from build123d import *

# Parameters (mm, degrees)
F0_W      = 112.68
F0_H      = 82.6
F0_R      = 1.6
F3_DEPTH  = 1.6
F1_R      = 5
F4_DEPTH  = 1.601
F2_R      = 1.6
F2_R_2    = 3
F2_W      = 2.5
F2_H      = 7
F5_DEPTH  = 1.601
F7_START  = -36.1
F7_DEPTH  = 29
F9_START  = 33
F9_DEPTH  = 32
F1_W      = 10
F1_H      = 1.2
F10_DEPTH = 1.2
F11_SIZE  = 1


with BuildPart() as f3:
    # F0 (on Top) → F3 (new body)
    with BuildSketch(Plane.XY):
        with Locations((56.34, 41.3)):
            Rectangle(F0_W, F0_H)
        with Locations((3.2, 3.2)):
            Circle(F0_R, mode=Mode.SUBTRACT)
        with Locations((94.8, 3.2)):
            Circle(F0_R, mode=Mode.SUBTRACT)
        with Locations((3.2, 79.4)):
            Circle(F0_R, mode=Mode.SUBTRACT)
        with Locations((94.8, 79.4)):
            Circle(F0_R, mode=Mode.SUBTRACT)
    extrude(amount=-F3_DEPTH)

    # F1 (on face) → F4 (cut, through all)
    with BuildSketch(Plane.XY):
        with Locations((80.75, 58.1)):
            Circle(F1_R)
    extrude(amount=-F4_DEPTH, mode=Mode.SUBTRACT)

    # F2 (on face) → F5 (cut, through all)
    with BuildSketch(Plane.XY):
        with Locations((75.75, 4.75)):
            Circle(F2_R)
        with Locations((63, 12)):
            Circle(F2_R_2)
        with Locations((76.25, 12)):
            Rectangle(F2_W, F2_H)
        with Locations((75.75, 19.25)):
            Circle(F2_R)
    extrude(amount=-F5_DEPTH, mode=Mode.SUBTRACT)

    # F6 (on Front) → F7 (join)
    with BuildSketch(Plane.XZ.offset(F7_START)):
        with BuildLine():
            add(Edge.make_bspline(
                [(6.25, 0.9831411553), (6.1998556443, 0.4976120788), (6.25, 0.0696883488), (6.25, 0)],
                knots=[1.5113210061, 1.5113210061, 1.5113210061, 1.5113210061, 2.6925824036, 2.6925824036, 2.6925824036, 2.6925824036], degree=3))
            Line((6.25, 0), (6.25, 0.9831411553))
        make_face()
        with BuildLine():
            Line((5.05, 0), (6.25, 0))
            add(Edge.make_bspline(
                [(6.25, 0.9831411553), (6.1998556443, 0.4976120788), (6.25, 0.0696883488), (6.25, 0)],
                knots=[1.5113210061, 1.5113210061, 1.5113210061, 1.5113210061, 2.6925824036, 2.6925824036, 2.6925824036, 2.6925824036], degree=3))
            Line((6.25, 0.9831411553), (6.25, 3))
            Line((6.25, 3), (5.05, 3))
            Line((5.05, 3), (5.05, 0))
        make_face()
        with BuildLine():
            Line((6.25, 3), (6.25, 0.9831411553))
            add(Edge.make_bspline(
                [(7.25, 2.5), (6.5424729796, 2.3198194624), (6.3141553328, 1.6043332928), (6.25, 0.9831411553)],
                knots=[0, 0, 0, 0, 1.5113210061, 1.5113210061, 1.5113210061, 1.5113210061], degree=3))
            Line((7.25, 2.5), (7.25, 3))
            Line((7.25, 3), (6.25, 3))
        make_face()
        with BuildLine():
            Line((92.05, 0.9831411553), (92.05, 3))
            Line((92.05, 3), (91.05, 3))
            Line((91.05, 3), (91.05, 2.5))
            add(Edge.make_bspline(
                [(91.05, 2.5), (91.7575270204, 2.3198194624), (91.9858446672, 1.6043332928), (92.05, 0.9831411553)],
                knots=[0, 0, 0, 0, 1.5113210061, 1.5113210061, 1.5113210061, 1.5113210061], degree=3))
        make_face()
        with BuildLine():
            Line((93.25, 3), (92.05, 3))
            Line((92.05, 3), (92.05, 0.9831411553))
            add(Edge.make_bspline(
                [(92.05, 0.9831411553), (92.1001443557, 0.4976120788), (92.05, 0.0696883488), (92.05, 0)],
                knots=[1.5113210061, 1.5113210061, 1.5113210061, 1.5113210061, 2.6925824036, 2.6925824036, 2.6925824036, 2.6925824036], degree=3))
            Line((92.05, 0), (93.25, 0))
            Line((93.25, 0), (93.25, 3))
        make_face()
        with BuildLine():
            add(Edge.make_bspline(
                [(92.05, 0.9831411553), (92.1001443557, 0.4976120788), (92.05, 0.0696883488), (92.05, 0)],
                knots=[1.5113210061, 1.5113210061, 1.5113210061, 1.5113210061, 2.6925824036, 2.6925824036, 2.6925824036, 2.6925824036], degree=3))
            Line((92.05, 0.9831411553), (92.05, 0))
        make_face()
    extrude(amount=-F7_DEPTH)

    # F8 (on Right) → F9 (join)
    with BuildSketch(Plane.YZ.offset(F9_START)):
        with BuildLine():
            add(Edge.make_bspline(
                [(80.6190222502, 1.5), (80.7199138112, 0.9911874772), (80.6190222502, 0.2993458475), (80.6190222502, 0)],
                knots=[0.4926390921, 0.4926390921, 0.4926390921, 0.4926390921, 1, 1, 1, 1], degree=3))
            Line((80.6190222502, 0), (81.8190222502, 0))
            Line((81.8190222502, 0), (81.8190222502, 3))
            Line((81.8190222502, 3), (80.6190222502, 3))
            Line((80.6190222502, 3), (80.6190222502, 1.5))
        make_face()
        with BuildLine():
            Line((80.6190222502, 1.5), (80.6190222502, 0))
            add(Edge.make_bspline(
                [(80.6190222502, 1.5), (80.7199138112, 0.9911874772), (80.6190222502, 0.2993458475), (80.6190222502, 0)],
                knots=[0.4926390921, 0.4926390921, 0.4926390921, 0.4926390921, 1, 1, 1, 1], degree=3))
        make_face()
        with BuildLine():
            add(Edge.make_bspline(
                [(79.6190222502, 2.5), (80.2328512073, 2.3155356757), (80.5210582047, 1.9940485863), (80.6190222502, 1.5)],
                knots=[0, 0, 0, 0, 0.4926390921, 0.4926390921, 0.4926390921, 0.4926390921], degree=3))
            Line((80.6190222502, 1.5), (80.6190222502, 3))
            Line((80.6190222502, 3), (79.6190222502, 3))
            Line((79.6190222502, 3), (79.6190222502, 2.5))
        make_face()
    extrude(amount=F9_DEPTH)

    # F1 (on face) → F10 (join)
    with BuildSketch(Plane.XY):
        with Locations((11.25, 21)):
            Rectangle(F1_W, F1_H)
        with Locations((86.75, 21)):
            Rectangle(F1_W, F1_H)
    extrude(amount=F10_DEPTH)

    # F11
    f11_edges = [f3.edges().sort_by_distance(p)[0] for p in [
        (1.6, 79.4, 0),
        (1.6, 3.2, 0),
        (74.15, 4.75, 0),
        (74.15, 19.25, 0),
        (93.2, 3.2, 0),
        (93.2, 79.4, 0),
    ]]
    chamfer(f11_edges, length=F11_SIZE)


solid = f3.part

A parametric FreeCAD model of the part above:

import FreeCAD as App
import Part
import Sketcher
from FreeCAD import Vector


def edges_at(feature, points):
    """Names of the edges that pass closest to the given points."""
    edges = feature.Shape.Edges
    near = lambda p: min(range(len(edges)), key=lambda i: edges[i].distToShape(Part.Vertex(*p))[0])
    return sorted({f"Edge{near(p) + 1}" for p in points})


def add_polygon(sketch, points):
    """Adds a closed chain of lines whose ends are joined by coincident constraints."""
    first, n = sketch.GeometryCount, len(points)
    for a, b in zip(points, points[1:] + points[:1]):
        sketch.addGeometry(Part.LineSegment(App.Vector(*a, 0), App.Vector(*b, 0)), False)
    for i in range(n):
        sketch.addConstraint(Sketcher.Constraint("Coincident", first + i, 2, first + (i + 1) % n, 1))

doc = App.newDocument("Part")
body = doc.addObject("PartDesign::Body", "Body")

sketch1 = body.newObject("Sketcher::SketchObject", "Sketch")
sketch1.AttachmentSupport = (doc.getObject("XY_Plane"), [""])
sketch1.MapMode = "FlatFace"
add_polygon(sketch1, [(0, 82.6), (0, 0), (112.7, 0), (112.7, 82.6)])
sketch1.addGeometry(Part.Circle(Vector(3.2, 3.2, 0), Vector(0, 0, 1), 1.6), False)
sketch1.addGeometry(Part.Circle(Vector(94.8, 3.2, 0), Vector(0, 0, 1), 1.6), False)
sketch1.addGeometry(Part.Circle(Vector(3.2, 79.4, 0), Vector(0, 0, 1), 1.6), False)
sketch1.addGeometry(Part.Circle(Vector(94.8, 79.4, 0), Vector(0, 0, 1), 1.6), False)
sketch1.addConstraint([
    Sketcher.Constraint("Vertical", 0),
    Sketcher.Constraint("Horizontal", 1),
    Sketcher.Constraint("Vertical", 2),
    Sketcher.Constraint("Horizontal", 3),
    Sketcher.Constraint("Coincident", 0, 2, -1, 1),
    Sketcher.Constraint("Equal", 4, 5),
    Sketcher.Constraint("Equal", 5, 6),
    Sketcher.Constraint("Equal", 6, 7),
    Sketcher.Constraint("Horizontal", 4, 3, 5, 3),
    Sketcher.Constraint("Horizontal", 6, 3, 7, 3),
    Sketcher.Constraint("Vertical", 4, 3, 6, 3),
    Sketcher.Constraint("Vertical", 5, 3, 7, 3),
    Sketcher.Constraint("Diameter", 4, 3.2),
    Sketcher.Constraint("DistanceY", 0, 2, 0, 1, 82.6),
    Sketcher.Constraint("DistanceX", 1, 1, 1, 2, 112.68),
    Sketcher.Constraint("DistanceX", -1, 1, 4, 3, 3.2),
    Sketcher.Constraint("DistanceY", -1, 1, 4, 3, 3.2),
    Sketcher.Constraint("DistanceX", -1, 1, 5, 3, 94.8),
    Sketcher.Constraint("DistanceY", -1, 1, 6, 3, 79.4),
])
pad1 = body.newObject("PartDesign::Pad", "Pad")
pad1.Profile = sketch1
pad1.Length = 1.6
pad1.Reversed = True

sketch2 = body.newObject("Sketcher::SketchObject", "Sketch001")
sketch2.AttachmentSupport = (doc.getObject("XY_Plane"), [""])
sketch2.MapMode = "FlatFace"
sketch2.addGeometry(Part.Circle(Vector(81, 58, 0), Vector(0, 0, 1), 5), False)
sketch2.addConstraint([
    Sketcher.Constraint("Diameter", 0, 10.0),
    Sketcher.Constraint("DistanceY", -1, 1, 0, 3, 58.1),
    Sketcher.Constraint("DistanceX", -1, 1, 0, 3, 80.75),
])
pocket1 = body.newObject("PartDesign::Pocket", "Pocket")
pocket1.Profile = sketch2
pocket1.Type = "ThroughAll"

sketch3 = body.newObject("Sketcher::SketchObject", "Sketch002")
sketch3.AttachmentSupport = (doc.getObject("XY_Plane"), [""])
sketch3.MapMode = "FlatFace"
sketch3.addGeometry(Part.Circle(Vector(75.8, 4.8, 0), Vector(0, 0, 1), 1.6), False)
sketch3.addGeometry(Part.Circle(Vector(63, 12, 0), Vector(0, 0, 1), 3), False)
add_polygon(sketch3, [(75, 15.5), (75, 8.5), (77.5, 8.5), (77.5, 15.5)])
sketch3.addGeometry(Part.Circle(Vector(75.8, 19.2, 0), Vector(0, 0, 1), 1.6), False)
sketch3.addConstraint([
    Sketcher.Constraint("Vertical", 2),
    Sketcher.Constraint("Horizontal", 3),
    Sketcher.Constraint("Vertical", 4),
    Sketcher.Constraint("Horizontal", 5),
    Sketcher.Constraint("Equal", 0, 6),
    Sketcher.Constraint("Vertical", 0, 3, 6, 3),
    Sketcher.Constraint("Diameter", 1, 6.0),
    Sketcher.Constraint("Diameter", 0, 3.2),
    Sketcher.Constraint("DistanceY", 2, 2, 2, 1, 7.0),
    Sketcher.Constraint("DistanceX", 3, 1, 3, 2, 2.5),
    Sketcher.Constraint("DistanceX", -1, 1, 1, 3, 63.0),
    Sketcher.Constraint("DistanceY", -1, 1, 1, 3, 12.0),
    Sketcher.Constraint("DistanceX", -1, 1, 2, 2, 75.0),
    Sketcher.Constraint("DistanceY", -1, 1, 2, 2, 8.5),
    Sketcher.Constraint("DistanceY", 0, 3, 6, 3, 14.5),
    Sketcher.Constraint("DistanceX", -1, 1, 0, 3, 75.75),
    Sketcher.Constraint("DistanceY", -1, 1, 0, 3, 4.75),
])
pocket2 = body.newObject("PartDesign::Pocket", "Pocket001")
pocket2.Profile = sketch3
pocket2.Type = "ThroughAll"

sketch4 = body.newObject("Sketcher::SketchObject", "Sketch003")
sketch4.AttachmentSupport = (doc.getObject("XZ_Plane"), [""])
sketch4.MapMode = "FlatFace"
sketch4.AttachmentOffset = App.Placement(Vector(0, 0, -36.1), App.Rotation())
sketch4.addGeometry([
    Part.LineSegment(Vector(6.25, 0, 0), Vector(6.25, 0.983141, 0)),
    Part.BSplineCurve([Vector(7.25, 2.5, 0), Vector(6.542473, 2.319819, 0), Vector(6.314155, 1.604333, 0), Vector(6.25, 0.983141, 0)], [4, 4], [0, 1.511321006], False, 3, [1, 1, 1, 1], False),
    Part.LineSegment(Vector(7.25, 2.5, 0), Vector(7.25, 3, 0)),
    Part.LineSegment(Vector(7.25, 3, 0), Vector(5.05, 3, 0)),
    Part.LineSegment(Vector(5.05, 3, 0), Vector(5.05, 0, 0)),
    Part.LineSegment(Vector(5.05, 0, 0), Vector(6.25, 0, 0)),
    Part.LineSegment(Vector(91.05, 3, 0), Vector(91.05, 2.5, 0)),
    Part.BSplineCurve([Vector(91.05, 2.5, 0), Vector(91.757527, 2.319819, 0), Vector(91.985845, 1.604333, 0), Vector(92.05, 0.983141, 0)], [4, 4], [0, 1.511321006], False, 3, [1, 1, 1, 1], False),
    Part.LineSegment(Vector(92.05, 0.983141, 0), Vector(92.05, 0, 0)),
    Part.LineSegment(Vector(92.05, 0, 0), Vector(93.25, 0, 0)),
    Part.LineSegment(Vector(93.25, 0, 0), Vector(93.25, 3, 0)),
    Part.LineSegment(Vector(93.25, 3, 0), Vector(91.05, 3, 0)),
], False)
sketch4.addConstraint([
    Sketcher.Constraint("Block", 1),
    Sketcher.Constraint("Block", 7),
    Sketcher.Constraint("Coincident", 0, 2, 1, 2),
    Sketcher.Constraint("Coincident", 1, 1, 2, 1),
    Sketcher.Constraint("Coincident", 2, 2, 3, 1),
    Sketcher.Constraint("Coincident", 3, 2, 4, 1),
    Sketcher.Constraint("Coincident", 4, 2, 5, 1),
    Sketcher.Constraint("Coincident", 5, 2, 0, 1),
    Sketcher.Constraint("Coincident", 6, 2, 7, 1),
    Sketcher.Constraint("Coincident", 7, 2, 8, 1),
    Sketcher.Constraint("Coincident", 8, 2, 9, 1),
    Sketcher.Constraint("Coincident", 9, 2, 10, 1),
    Sketcher.Constraint("Coincident", 10, 2, 11, 1),
    Sketcher.Constraint("Coincident", 11, 2, 6, 1),
    Sketcher.Constraint("Vertical", 0),
    Sketcher.Constraint("Vertical", 2),
    Sketcher.Constraint("Horizontal", 3),
    Sketcher.Constraint("Vertical", 4),
    Sketcher.Constraint("Horizontal", 5),
    Sketcher.Constraint("Vertical", 6),
    Sketcher.Constraint("Vertical", 8),
    Sketcher.Constraint("Horizontal", 9),
    Sketcher.Constraint("Vertical", 10),
    Sketcher.Constraint("Horizontal", 11),
    Sketcher.Constraint("PointOnObject", 4, 2, -1),
    Sketcher.Constraint("PointOnObject", 8, 2, -1),
    Sketcher.Constraint("Horizontal", 3, 2, 10, 2),
    Sketcher.Constraint("Equal", 5, 9),
    Sketcher.Constraint("DistanceY", 4, 2, 4, 1, 3.0),
    Sketcher.Constraint("DistanceX", 3, 2, 3, 1, 2.2),
])
pad2 = body.newObject("PartDesign::Pad", "Pad001")
pad2.Profile = sketch4
pad2.Length = 29
pad2.Reversed = True

sketch5 = body.newObject("Sketcher::SketchObject", "Sketch004")
sketch5.AttachmentSupport = (doc.getObject("YZ_Plane"), [""])
sketch5.MapMode = "FlatFace"
sketch5.AttachmentOffset = App.Placement(Vector(0, 0, 33), App.Rotation())
sketch5.addGeometry([
    Part.LineSegment(Vector(80.619022, 0, 0), Vector(81.819022, 0, 0)),
    Part.LineSegment(Vector(81.819022, 0, 0), Vector(81.819022, 3, 0)),
    Part.LineSegment(Vector(81.819022, 3, 0), Vector(79.619022, 3, 0)),
    Part.LineSegment(Vector(79.619022, 3, 0), Vector(79.619022, 2.5, 0)),
    Part.BSplineCurve([Vector(79.619022, 2.5, 0), Vector(80.232851, 2.315536, 0), Vector(80.521058, 1.994049, 0), Vector(80.619022, 1.5, 0)], [4, 4], [0, 0.492639092], False, 3, [1, 1, 1, 1], False),
    Part.LineSegment(Vector(80.619022, 1.5, 0), Vector(80.619022, 0, 0)),
], False)
sketch5.addConstraint([
    Sketcher.Constraint("Block", 4),
    Sketcher.Constraint("Coincident", 0, 2, 1, 1),
    Sketcher.Constraint("Coincident", 1, 2, 2, 1),
    Sketcher.Constraint("Coincident", 2, 2, 3, 1),
    Sketcher.Constraint("Coincident", 3, 2, 4, 1),
    Sketcher.Constraint("Coincident", 4, 2, 5, 1),
    Sketcher.Constraint("Coincident", 5, 2, 0, 1),
    Sketcher.Constraint("Horizontal", 0),
    Sketcher.Constraint("Vertical", 1),
    Sketcher.Constraint("Horizontal", 2),
    Sketcher.Constraint("Vertical", 3),
    Sketcher.Constraint("Vertical", 5),
    Sketcher.Constraint("PointOnObject", 0, 2, -1),
    Sketcher.Constraint("DistanceY", 1, 1, 1, 2, 3.0),
    Sketcher.Constraint("DistanceX", 0, 1, 0, 2, 1.2),
])
pad3 = body.newObject("PartDesign::Pad", "Pad002")
pad3.Profile = sketch5
pad3.Length = 32

sketch6 = body.newObject("Sketcher::SketchObject", "Sketch005")
sketch6.AttachmentSupport = (doc.getObject("XY_Plane"), [""])
sketch6.MapMode = "FlatFace"
add_polygon(sketch6, [(6.2, 21.6), (6.2, 20.4), (16.2, 20.4), (16.2, 21.6)])
add_polygon(sketch6, [(81.8, 21.6), (81.8, 20.4), (91.8, 20.4), (91.8, 21.6)])
sketch6.addConstraint([
    Sketcher.Constraint("Vertical", 0),
    Sketcher.Constraint("Horizontal", 1),
    Sketcher.Constraint("Vertical", 2),
    Sketcher.Constraint("Horizontal", 3),
    Sketcher.Constraint("Vertical", 4),
    Sketcher.Constraint("Horizontal", 5),
    Sketcher.Constraint("Vertical", 6),
    Sketcher.Constraint("Horizontal", 7),
    Sketcher.Constraint("Horizontal", 1, 2, 4, 2),
    Sketcher.Constraint("Horizontal", 3, 2, 6, 2),
    Sketcher.Constraint("Equal", 3, 5),
    Sketcher.Constraint("DistanceX", 1, 1, 1, 2, 10.0),
    Sketcher.Constraint("DistanceY", 0, 2, 0, 1, 1.2),
    Sketcher.Constraint("DistanceY", -1, 1, 0, 2, 20.4),
    Sketcher.Constraint("DistanceX", 1, 2, 4, 2, 65.5),
    Sketcher.Constraint("DistanceX", -1, 1, 0, 2, 6.25),
])
pad4 = body.newObject("PartDesign::Pad", "Pad003")
pad4.Profile = sketch6
pad4.Length = 1.2
doc.recompute()

chamfer = body.newObject("PartDesign::Chamfer", "Chamfer")
chamfer.Base = (pad4, edges_at(pad4, [
    (1.6, 79.4, 0),
    (1.6, 3.2, 0),
    (74.15, 4.75, 0),
    (74.15, 19.25, 0),
    (93.2, 3.2, 0),
    (93.2, 79.4, 0),
]))
chamfer.Size = 1

doc.recompute()
